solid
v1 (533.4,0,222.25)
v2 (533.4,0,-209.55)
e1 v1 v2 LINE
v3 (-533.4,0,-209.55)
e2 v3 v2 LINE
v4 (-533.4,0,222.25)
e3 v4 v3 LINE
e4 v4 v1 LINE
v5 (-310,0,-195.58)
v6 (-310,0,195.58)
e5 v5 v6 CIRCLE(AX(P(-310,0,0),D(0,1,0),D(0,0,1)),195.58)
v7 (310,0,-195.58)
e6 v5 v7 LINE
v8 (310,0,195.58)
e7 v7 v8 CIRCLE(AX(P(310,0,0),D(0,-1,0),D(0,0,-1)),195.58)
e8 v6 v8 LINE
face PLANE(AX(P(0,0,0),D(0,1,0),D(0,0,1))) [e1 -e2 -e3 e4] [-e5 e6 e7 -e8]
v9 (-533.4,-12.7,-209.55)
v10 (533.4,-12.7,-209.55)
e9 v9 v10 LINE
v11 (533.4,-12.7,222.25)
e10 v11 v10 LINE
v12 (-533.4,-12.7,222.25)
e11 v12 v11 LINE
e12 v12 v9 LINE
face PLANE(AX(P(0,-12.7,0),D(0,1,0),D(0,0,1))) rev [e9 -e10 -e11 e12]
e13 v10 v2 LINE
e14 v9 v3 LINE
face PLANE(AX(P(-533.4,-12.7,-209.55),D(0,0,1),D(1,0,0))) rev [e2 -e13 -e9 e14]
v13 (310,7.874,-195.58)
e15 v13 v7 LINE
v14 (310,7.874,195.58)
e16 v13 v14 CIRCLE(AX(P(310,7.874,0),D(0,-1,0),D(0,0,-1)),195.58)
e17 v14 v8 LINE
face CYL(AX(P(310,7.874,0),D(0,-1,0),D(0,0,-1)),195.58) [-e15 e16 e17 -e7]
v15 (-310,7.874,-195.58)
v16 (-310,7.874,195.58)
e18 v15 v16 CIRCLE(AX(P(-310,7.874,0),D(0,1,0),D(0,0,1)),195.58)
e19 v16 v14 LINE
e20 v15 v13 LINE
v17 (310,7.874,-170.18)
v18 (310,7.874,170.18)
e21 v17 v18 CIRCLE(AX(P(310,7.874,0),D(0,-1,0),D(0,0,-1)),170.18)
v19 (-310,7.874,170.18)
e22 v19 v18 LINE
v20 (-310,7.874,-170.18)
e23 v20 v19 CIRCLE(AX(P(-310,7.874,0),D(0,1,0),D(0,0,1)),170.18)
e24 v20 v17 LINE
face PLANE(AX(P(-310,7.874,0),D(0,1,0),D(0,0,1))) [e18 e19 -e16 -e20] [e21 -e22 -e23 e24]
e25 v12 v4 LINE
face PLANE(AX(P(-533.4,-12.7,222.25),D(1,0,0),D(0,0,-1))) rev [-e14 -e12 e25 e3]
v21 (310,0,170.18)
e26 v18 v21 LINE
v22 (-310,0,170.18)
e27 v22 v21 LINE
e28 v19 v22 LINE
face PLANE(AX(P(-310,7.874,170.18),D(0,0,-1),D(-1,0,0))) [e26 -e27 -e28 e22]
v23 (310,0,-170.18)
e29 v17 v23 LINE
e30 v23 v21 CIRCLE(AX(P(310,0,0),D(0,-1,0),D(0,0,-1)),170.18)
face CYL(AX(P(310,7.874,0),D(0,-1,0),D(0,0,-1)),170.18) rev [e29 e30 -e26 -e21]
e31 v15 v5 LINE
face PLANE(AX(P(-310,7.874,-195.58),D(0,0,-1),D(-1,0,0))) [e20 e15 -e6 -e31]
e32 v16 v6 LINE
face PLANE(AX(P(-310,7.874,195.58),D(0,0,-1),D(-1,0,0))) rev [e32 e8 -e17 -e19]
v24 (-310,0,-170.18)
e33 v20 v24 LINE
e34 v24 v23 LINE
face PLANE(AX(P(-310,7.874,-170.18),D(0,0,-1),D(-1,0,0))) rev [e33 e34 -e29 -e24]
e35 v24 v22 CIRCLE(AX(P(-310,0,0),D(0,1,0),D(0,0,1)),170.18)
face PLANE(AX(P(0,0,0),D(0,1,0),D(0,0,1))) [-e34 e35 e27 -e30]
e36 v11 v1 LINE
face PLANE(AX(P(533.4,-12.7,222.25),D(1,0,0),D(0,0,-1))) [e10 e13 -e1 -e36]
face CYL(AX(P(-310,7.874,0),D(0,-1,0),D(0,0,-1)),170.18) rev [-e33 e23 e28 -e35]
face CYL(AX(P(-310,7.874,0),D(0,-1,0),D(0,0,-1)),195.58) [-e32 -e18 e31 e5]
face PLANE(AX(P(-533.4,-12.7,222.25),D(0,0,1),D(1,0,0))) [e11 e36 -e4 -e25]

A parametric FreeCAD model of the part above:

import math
import FreeCAD as App
import Part
import Sketcher
Q = App.Units.Quantity


def add_polygon(sketch, points):
    """Adds a closed chain of lines whose ends are joined by coincident constraints."""
    first, n = sketch.GeometryCount, len(points)
    for a, b in zip(points, points[1:] + points[:1]):
        sketch.addGeometry(Part.LineSegment(App.Vector(*a, 0), App.Vector(*b, 0)), False)
    for i in range(n):
        sketch.addConstraint(Sketcher.Constraint("Coincident", first + i, 2, first + (i + 1) % n, 1))

doc = App.newDocument("Part")
params = doc.addObject("Spreadsheet::Sheet", "Params")
for row, (alias, value) in enumerate([
    ("sketch1_radius", "7.7 in"),
    ("sketch1_radius2", "6.7 in"),
    ("pad1_length", "0.31 in"),
    ("sketch2_width", "42 in"),
    ("sketch2_height", "17 in"),
    ("pad2_length", "0.5 in"),
], start=1):
    params.set(f"A{row}", alias)
    params.set(f"B{row}", "=" + value)
    params.setAlias(f"B{row}", alias)

body = doc.addObject("PartDesign::Body", "Body")

# Sketch on XZ plane
sketch1 = body.newObject("Sketcher::SketchObject", "Sketch")
sketch1.AttachmentSupport = (doc.getObject("XZ_Plane"), [""])
sketch1.MapMode = "FlatFace"
sketch1.addGeometry([
    Part.LineSegment(App.Vector(-310, 195.58, 0), App.Vector(310, 195.58, 0)),  # 0
    Part.ArcOfCircle(Part.Circle(App.Vector(310, 0, 0), App.Vector(0, 0, 1), 195.58), math.radians(-90), math.radians(90)),  # 1
    Part.LineSegment(App.Vector(310, -195.58, 0), App.Vector(-310, -195.58, 0)),  # 2
    Part.ArcOfCircle(Part.Circle(App.Vector(-310, 0, 0), App.Vector(0, 0, 1), 195.58), math.radians(90), math.radians(270)),  # 3
    Part.LineSegment(App.Vector(310, 170.18, 0), App.Vector(-310, 170.18, 0)),  # 4
    Part.ArcOfCircle(Part.Circle(App.Vector(-310, 0, 0), App.Vector(0, 0, 1), 170.18), math.radians(90), math.radians(270)),  # 5
    Part.LineSegment(App.Vector(-310, -170.18, 0), App.Vector(310, -170.18, 0)),  # 6
    Part.ArcOfCircle(Part.Circle(App.Vector(310, 0, 0), App.Vector(0, 0, 1), 170.18), math.radians(-90), math.radians(90)),  # 7
], False)
sketch1.addConstraint([
    Sketcher.Constraint("Tangent", 0, 2, 1, 2),
    Sketcher.Constraint("Tangent", 1, 1, 2, 1),
    Sketcher.Constraint("Tangent", 2, 2, 3, 2),
    Sketcher.Constraint("Tangent", 3, 1, 0, 1),
    Sketcher.Constraint("Tangent", 4, 2, 5, 1),
    Sketcher.Constraint("Tangent", 5, 2, 6, 1),
    Sketcher.Constraint("Tangent", 6, 2, 7, 1),
    Sketcher.Constraint("Tangent", 7, 2, 4, 1),
    Sketcher.Constraint("Horizontal", 0),
    Sketcher.Constraint("Horizontal", 2),
    Sketcher.Constraint("Horizontal", 4),
    Sketcher.Constraint("Horizontal", 6),
    Sketcher.Constraint("Coincident", 5, 3, 3, 3),
    Sketcher.Constraint("Symmetric", 1, 3, 3, 3, -1, 1),
    Sketcher.Constraint("Vertical", 7, 3, 0, 2),
    Sketcher.Constraint("Radius", 1, Q("7.7 in")),
    Sketcher.Constraint("Radius", 5, Q("6.7 in")),
    Sketcher.Constraint("DistanceX", 0, 1, 0, 2, Q("620 mm")),
])
sketch1.setExpression("Constraints[15]", "Params.sketch1_radius")
sketch1.setExpression("Constraints[16]", "Params.sketch1_radius2")
pad1 = body.newObject("PartDesign::Pad", "Pad")
pad1.Profile = sketch1
pad1.setExpression("Length", "Params.pad1_length")
pad1.Reversed = True

# Sketch on XZ plane
sketch2 = body.newObject("Sketcher::SketchObject", "Sketch001")
sketch2.AttachmentSupport = (doc.getObject("XZ_Plane"), [""])
sketch2.MapMode = "FlatFace"
add_polygon(sketch2, [(-533.4, -209.55), (-533.4, 222.25), (533.4, 222.25), (533.4, -209.55)])  # lines 0-3
sketch2.addConstraint([
    Sketcher.Constraint("Vertical", 0),
    Sketcher.Constraint("Horizontal", 1),
    Sketcher.Constraint("Vertical", 2),
    Sketcher.Constraint("Horizontal", 3),
    Sketcher.Constraint("DistanceX", 1, 1, 1, 2, Q("42 in")),
    Sketcher.Constraint("DistanceY", 0, 1, 0, 2, Q("17 in")),
    Sketcher.Constraint("DistanceX", 0, 2, -1, 1, Q("21 in")),
    Sketcher.Constraint("DistanceY", -1, 1, 0, 2, Q("8.75 in")),
])
sketch2.setExpression("Constraints[8]", "Params.sketch2_width")
sketch2.setExpression("Constraints[9]", "Params.sketch2_height")
pad2 = body.newObject("PartDesign::Pad", "Pad001")
pad2.Profile = sketch2
pad2.setExpression("Length", "Params.pad2_length")

doc.recompute()
